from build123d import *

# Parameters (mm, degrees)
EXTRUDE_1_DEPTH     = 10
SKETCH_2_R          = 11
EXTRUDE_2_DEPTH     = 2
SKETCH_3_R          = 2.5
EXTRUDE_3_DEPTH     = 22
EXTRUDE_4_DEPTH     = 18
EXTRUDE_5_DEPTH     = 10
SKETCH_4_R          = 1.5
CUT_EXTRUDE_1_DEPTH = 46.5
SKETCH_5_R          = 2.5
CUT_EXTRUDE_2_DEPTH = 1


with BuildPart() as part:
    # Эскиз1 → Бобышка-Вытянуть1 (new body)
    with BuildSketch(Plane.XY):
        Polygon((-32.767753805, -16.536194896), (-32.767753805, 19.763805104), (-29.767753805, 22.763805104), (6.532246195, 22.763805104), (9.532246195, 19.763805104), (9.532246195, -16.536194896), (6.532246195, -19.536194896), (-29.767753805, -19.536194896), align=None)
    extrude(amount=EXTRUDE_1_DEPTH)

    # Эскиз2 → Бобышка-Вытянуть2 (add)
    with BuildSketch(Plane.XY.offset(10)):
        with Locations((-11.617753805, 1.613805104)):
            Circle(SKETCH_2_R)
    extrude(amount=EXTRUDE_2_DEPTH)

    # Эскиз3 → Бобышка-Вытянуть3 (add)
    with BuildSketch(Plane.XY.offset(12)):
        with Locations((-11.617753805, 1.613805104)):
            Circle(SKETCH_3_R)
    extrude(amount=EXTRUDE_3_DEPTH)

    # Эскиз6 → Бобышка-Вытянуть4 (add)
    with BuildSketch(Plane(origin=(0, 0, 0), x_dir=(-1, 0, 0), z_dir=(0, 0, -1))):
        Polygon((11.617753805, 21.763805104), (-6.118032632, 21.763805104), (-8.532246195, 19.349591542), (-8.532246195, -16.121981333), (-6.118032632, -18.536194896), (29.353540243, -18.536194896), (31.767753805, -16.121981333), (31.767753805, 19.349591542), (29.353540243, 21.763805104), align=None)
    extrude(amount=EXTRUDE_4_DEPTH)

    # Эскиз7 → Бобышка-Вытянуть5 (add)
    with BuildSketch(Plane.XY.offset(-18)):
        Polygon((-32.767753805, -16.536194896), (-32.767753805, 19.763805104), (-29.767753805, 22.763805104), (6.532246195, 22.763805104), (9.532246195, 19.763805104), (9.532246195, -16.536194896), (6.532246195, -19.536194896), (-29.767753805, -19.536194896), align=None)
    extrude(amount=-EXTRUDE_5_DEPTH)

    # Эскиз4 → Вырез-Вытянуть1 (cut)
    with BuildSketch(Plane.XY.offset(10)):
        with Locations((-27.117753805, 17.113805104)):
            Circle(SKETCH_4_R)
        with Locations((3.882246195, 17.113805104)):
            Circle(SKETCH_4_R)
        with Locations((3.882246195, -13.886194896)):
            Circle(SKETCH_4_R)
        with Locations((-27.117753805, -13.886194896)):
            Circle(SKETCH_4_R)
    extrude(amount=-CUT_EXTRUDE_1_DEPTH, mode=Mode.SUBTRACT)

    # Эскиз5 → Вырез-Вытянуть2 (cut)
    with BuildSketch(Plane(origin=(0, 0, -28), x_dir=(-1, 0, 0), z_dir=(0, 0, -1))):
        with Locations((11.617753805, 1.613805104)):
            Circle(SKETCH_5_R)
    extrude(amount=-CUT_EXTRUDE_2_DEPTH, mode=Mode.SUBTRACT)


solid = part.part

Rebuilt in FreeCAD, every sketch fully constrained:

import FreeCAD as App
import Part
import Sketcher
from FreeCAD import Vector
Q = App.Units.Quantity


def add_polygon(sketch, points):
    """Adds a closed chain of lines whose ends are joined by coincident constraints."""
    first, n = sketch.GeometryCount, len(points)
    for a, b in zip(points, points[1:] + points[:1]):
        sketch.addGeometry(Part.LineSegment(App.Vector(*a, 0), App.Vector(*b, 0)), False)
    for i in range(n):
        sketch.addConstraint(Sketcher.Constraint("Coincident", first + i, 2, first + (i + 1) % n, 1))

doc = App.newDocument("Part")
params = doc.addObject("Spreadsheet::Sheet", "Params")
for row, (alias, value) in enumerate([
    ("sketch1_width", "36.3 mm"),
    ("pad1_length", "10 mm"),
    ("sketch2_diameter", "22 mm"),
    ("pad2_length", "2 mm"),
    ("sketch3_diameter", "5 mm"),
    ("pad3_length", "22 mm"),
    ("pad4_length", "18 mm"),
    ("sketch5_width", "36.3 mm"),
    ("pad5_length", "10 mm"),
    ("sketch6_diameter", "3 mm"),
    ("pocket1_length", "46.5 mm"),
    ("sketch7_diameter", "5 mm"),
    ("pocket2_length", "1 mm"),
], start=1):
    params.set(f"A{row}", alias)
    params.set(f"B{row}", "=" + value)
    params.setAlias(f"B{row}", alias)

body = doc.addObject("PartDesign::Body", "Body")

# Sketch on XY plane
sketch1 = body.newObject("Sketcher::SketchObject", "Sketch")
sketch1.AttachmentSupport = (doc.getObject("XY_Plane"), [""])
sketch1.MapMode = "FlatFace"
add_polygon(sketch1, [(-32.8, 19.8), (-32.8, -16.5), (-29.8, -19.5), (6.5, -19.5), (9.5, -16.5), (9.5, 19.8), (6.5, 22.8), (-29.8, 22.8)])  # lines 0-7
sketch1.addConstraint([
    Sketcher.Constraint("Vertical", 0),
    Sketcher.Constraint("Horizontal", 2),
    Sketcher.Constraint("Vertical", 4),
    Sketcher.Constraint("Horizontal", 6),
    Sketcher.Constraint("Perpendicular", 1, 3),
    Sketcher.Constraint("Perpendicular", 3, 5),
    Sketcher.Constraint("Perpendicular", 5, 7),
    Sketcher.Constraint("Horizontal", 0, 2, 3, 2),
    Sketcher.Constraint("Horizontal", 4, 2, 7, 2),
    Sketcher.Constraint("Vertical", 2, 2, 5, 2),
    Sketcher.Constraint("Vertical", 1, 2, 6, 2),
    Sketcher.Constraint("Equal", 6, 0),
    Sketcher.Constraint("DistanceX", 2, 1, 2, 2, Q("36.3 mm")),
    Sketcher.Constraint("DistanceX", 0, 2, 1, 2, Q("3 mm")),
    Sketcher.Constraint("DistanceX", 0, 2, -1, 1, Q("32.767754 mm")),
    Sketcher.Constraint("DistanceY", 0, 2, -1, 1, Q("16.536195 mm")),
])
sketch1.setExpression("Constraints[20]", "Params.sketch1_width")
pad1 = body.newObject("PartDesign::Pad", "Pad")
pad1.Profile = sketch1
pad1.setExpression("Length", "Params.pad1_length")

# Sketch on XY plane
sketch2 = body.newObject("Sketcher::SketchObject", "Sketch001")
sketch2.AttachmentSupport = (doc.getObject("XY_Plane"), [""])
sketch2.MapMode = "FlatFace"
sketch2.AttachmentOffset = App.Placement(Vector(0, 0, 10), App.Rotation())
sketch2.addGeometry(Part.Circle(Vector(-12, 2, 0), Vector(0, 0, 1), 11), False)
sketch2.addConstraint([
    Sketcher.Constraint("Diameter", 0, Q("22 mm")),
    Sketcher.Constraint("DistanceX", 0, 3, -1, 1, Q("11.617754 mm")),
    Sketcher.Constraint("DistanceY", -1, 1, 0, 3, Q("1.613805 mm")),
])
sketch2.setExpression("Constraints[0]", "Params.sketch2_diameter")
pad2 = body.newObject("PartDesign::Pad", "Pad001")
pad2.Profile = sketch2
pad2.setExpression("Length", "Params.pad2_length")

# Sketch on XY plane
sketch3 = body.newObject("Sketcher::SketchObject", "Sketch002")
sketch3.AttachmentSupport = (doc.getObject("XY_Plane"), [""])
sketch3.MapMode = "FlatFace"
sketch3.AttachmentOffset = App.Placement(Vector(0, 0, 12), App.Rotation())
sketch3.addGeometry(Part.Circle(Vector(-11.6, 1.6, 0), Vector(0, 0, 1), 2.5), False)
sketch3.addConstraint([
    Sketcher.Constraint("Diameter", 0, Q("5 mm")),
    Sketcher.Constraint("DistanceX", 0, 3, -1, 1, Q("11.617754 mm")),
    Sketcher.Constraint("DistanceY", -1, 1, 0, 3, Q("1.613805 mm")),
])
sketch3.setExpression("Constraints[0]", "Params.sketch3_diameter")
pad3 = body.newObject("PartDesign::Pad", "Pad002")
pad3.Profile = sketch3
pad3.setExpression("Length", "Params.pad3_length")

# Sketch on XY plane
sketch4 = body.newObject("Sketcher::SketchObject", "Sketch003")
sketch4.AttachmentSupport = (doc.getObject("XY_Plane"), [""])
sketch4.MapMode = "FlatFace"
add_polygon(sketch4, [(6.1, 21.8), (8.5, 19.3), (8.5, -16.1), (6.1, -18.5), (-29.4, -18.5), (-31.8, -16.1), (-31.8, 19.3), (-29.4, 21.8)])  # lines 0-7
sketch4.addConstraint([
    Sketcher.Constraint("Vertical", 1),
    Sketcher.Constraint("Horizontal", 3),
    Sketcher.Constraint("Vertical", 5),
    Sketcher.Constraint("Horizontal", 7),
    Sketcher.Constraint("Perpendicular", 0, 2),
    Sketcher.Constraint("Perpendicular", 2, 4),
    Sketcher.Constraint("Perpendicular", 4, 6),
    Sketcher.Constraint("Horizontal", 1, 2, 4, 2),
    Sketcher.Constraint("Horizontal", 0, 2, 5, 2),
    Sketcher.Constraint("Vertical", 3, 2, 6, 2),
    Sketcher.Constraint("Vertical", 2, 2, 7, 2),
    Sketcher.Constraint("Equal", 7, 1),
    Sketcher.Constraint("DistanceX", 4, 2, 1, 2, Q("40.3 mm")),
    Sketcher.Constraint("DistanceX", 3, 2, 3, 1, Q("35.471573 mm")),
    Sketcher.Constraint("DistanceY", -1, 1, 0, 2, Q("19.349592 mm")),
    Sketcher.Constraint("DistanceX", 3, 2, -1, 1, Q("29.35354 mm")),
])
pad4 = body.newObject("PartDesign::Pad", "Pad003")
pad4.Profile = sketch4
pad4.setExpression("Length", "Params.pad4_length")
pad4.Reversed = True

# Sketch on XY plane
sketch5 = body.newObject("Sketcher::SketchObject", "Sketch004")
sketch5.AttachmentSupport = (doc.getObject("XY_Plane"), [""])
sketch5.MapMode = "FlatFace"
sketch5.AttachmentOffset = App.Placement(Vector(0, 0, -18), App.Rotation())
add_polygon(sketch5, [(-32.8, 19.8), (-32.8, -16.5), (-29.8, -19.5), (6.5, -19.5), (9.5, -16.5), (9.5, 19.8), (6.5, 22.8), (-29.8, 22.8)])  # lines 0-7
sketch5.addConstraint([
    Sketcher.Constraint("Vertical", 0),
    Sketcher.Constraint("Horizontal", 2),
    Sketcher.Constraint("Vertical", 4),
    Sketcher.Constraint("Horizontal", 6),
    Sketcher.Constraint("Perpendicular", 1, 3),
    Sketcher.Constraint("Perpendicular", 3, 5),
    Sketcher.Constraint("Perpendicular", 5, 7),
    Sketcher.Constraint("Horizontal", 0, 2, 3, 2),
    Sketcher.Constraint("Horizontal", 4, 2, 7, 2),
    Sketcher.Constraint("Vertical", 2, 2, 5, 2),
    Sketcher.Constraint("Vertical", 1, 2, 6, 2),
    Sketcher.Constraint("Equal", 6, 0),
    Sketcher.Constraint("DistanceX", 2, 1, 2, 2, Q("36.3 mm")),
    Sketcher.Constraint("DistanceX", 0, 2, 1, 2, Q("3 mm")),
    Sketcher.Constraint("DistanceX", 0, 2, -1, 1, Q("32.767754 mm")),
    Sketcher.Constraint("DistanceY", 0, 2, -1, 1, Q("16.536195 mm")),
])
sketch5.setExpression("Constraints[20]", "Params.sketch5_width")
pad5 = body.newObject("PartDesign::Pad", "Pad004")
pad5.Profile = sketch5
pad5.setExpression("Length", "Params.pad5_length")
pad5.Reversed = True

# Sketch on XY plane
sketch6 = body.newObject("Sketcher::SketchObject", "Sketch005")
sketch6.AttachmentSupport = (doc.getObject("XY_Plane"), [""])
sketch6.MapMode = "FlatFace"
sketch6.AttachmentOffset = App.Placement(Vector(0, 0, 10), App.Rotation())
sketch6.addGeometry([
    Part.Circle(Vector(-27.1, 17.1, 0), Vector(0, 0, 1), 1.5),
    Part.Circle(Vector(3.9, 17.1, 0), Vector(0, 0, 1), 1.5),
    Part.Circle(Vector(3.9, -13.9, 0), Vector(0, 0, 1), 1.5),
    Part.Circle(Vector(-27.1, -13.9, 0), Vector(0, 0, 1), 1.5),
], False)
sketch6.addConstraint([
    Sketcher.Constraint("Equal", 0, 1),
    Sketcher.Constraint("Equal", 1, 2),
    Sketcher.Constraint("Equal", 2, 3),
    Sketcher.Constraint("Horizontal", 0, 3, 1, 3),
    Sketcher.Constraint("Horizontal", 2, 3, 3, 3),
    Sketcher.Constraint("Vertical", 1, 3, 2, 3),
    Sketcher.Constraint("Vertical", 0, 3, 3, 3),
    Sketcher.Constraint("Diameter", 0, Q("3 mm")),
    Sketcher.Constraint("DistanceX", 0, 3, 1, 3, Q("31 mm")),
    Sketcher.Constraint("DistanceY", 2, 3, 1, 3, Q("31 mm")),
    Sketcher.Constraint("DistanceX", 0, 3, -1, 1, Q("27.117754 mm")),
    Sketcher.Constraint("DistanceY", -1, 1, 0, 3, Q("17.113805 mm")),
])
sketch6.setExpression("Constraints[7]", "Params.sketch6_diameter")
pocket1 = body.newObject("PartDesign::Pocket", "Pocket")
pocket1.Profile = sketch6
pocket1.setExpression("Length", "Params.pocket1_length")

# Sketch on XY plane
sketch7 = body.newObject("Sketcher::SketchObject", "Sketch006")
sketch7.AttachmentSupport = (doc.getObject("XY_Plane"), [""])
sketch7.MapMode = "FlatFace"
sketch7.AttachmentOffset = App.Placement(Vector(0, 0, -28), App.Rotation())
sketch7.addGeometry(Part.Circle(Vector(-11.6, 1.6, 0), Vector(0, 0, 1), 2.5), False)
sketch7.addConstraint([
    Sketcher.Constraint("Diameter", 0, Q("5 mm")),
    Sketcher.Constraint("DistanceX", 0, 3, -1, 1, Q("11.617754 mm")),
    Sketcher.Constraint("DistanceY", -1, 1, 0, 3, Q("1.613805 mm")),
])
sketch7.setExpression("Constraints[0]", "Params.sketch7_diameter")
pocket2 = body.newObject("PartDesign::Pocket", "Pocket001")
pocket2.Profile = sketch7
pocket2.setExpression("Length", "Params.pocket2_length")
pocket2.Reversed = True

doc.recompute()
